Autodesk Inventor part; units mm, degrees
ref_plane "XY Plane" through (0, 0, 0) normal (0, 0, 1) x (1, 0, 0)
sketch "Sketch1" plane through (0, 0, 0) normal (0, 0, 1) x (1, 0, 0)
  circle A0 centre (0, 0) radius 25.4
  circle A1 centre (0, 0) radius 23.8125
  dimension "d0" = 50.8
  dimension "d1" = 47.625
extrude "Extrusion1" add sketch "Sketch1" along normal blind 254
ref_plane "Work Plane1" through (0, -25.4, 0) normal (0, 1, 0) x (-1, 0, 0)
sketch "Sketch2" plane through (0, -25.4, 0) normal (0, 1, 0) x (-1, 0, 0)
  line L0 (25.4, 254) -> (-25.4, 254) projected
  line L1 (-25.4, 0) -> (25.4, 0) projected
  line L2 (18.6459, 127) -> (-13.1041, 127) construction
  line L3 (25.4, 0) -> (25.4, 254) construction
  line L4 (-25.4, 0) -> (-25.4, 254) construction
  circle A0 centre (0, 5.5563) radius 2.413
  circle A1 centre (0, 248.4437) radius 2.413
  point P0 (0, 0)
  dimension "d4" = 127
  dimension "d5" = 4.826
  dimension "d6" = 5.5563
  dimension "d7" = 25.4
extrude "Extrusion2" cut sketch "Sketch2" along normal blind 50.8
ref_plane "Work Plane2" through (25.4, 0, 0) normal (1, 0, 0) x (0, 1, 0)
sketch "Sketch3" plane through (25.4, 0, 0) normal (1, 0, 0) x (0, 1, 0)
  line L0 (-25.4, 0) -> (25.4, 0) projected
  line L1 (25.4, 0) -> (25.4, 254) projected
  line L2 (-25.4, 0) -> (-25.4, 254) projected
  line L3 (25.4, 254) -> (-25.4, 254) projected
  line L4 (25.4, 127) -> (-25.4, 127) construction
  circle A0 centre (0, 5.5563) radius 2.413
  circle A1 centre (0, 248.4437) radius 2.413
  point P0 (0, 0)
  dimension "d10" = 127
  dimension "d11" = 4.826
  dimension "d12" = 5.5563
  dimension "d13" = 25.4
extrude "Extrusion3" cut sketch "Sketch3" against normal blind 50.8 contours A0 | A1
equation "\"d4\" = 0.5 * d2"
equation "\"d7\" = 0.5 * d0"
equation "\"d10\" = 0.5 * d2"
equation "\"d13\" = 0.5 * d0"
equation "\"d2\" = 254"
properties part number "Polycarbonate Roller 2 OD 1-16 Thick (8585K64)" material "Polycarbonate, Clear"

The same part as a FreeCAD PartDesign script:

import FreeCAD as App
import Part
import Sketcher

V = App.Vector
Q = App.Units.Quantity

doc = App.newDocument("Part")
body = doc.addObject("PartDesign::Body", "Body")

# Sketch on XY plane
sketch1 = body.newObject("Sketcher::SketchObject", "Sketch")
sketch1.AttachmentSupport = (doc.getObject("XY_Plane"), [""])
sketch1.MapMode = "FlatFace"
sketch1.addGeometry([
    Part.Circle(V(0, 0, 0), V(0, 0, 1), 25),
    Part.Circle(V(0, 0, 0), V(0, 0, 1), 24),
], False)
sketch1.addConstraint([
    Sketcher.Constraint("Coincident", 0, 3, -1, 1),
    Sketcher.Constraint("Coincident", 1, 3, -1, 1),
    Sketcher.Constraint("Diameter", 0, Q("2 in")),
    Sketcher.Constraint("Diameter", 1, Q("1.875 in")),
])
pad1 = body.newObject("PartDesign::Pad", "Pad")
pad1.Profile = sketch1
pad1.Length = Q("10 in")

# Sketch on XZ plane
sketch2 = body.newObject("Sketcher::SketchObject", "Sketch001")
sketch2.AttachmentSupport = (doc.getObject("XZ_Plane"), [""])
sketch2.MapMode = "FlatFace"
sketch2.AttachmentOffset = App.Placement(V(0, 0, 1 * 25.4), App.Rotation())
sketch2.addGeometry([
    Part.Circle(V(0, 5.6, 0), V(0, 0, 1), 2.4),
    Part.Circle(V(0, 248.4, 0), V(0, 0, 1), 2.4),
], False)
sketch2.addConstraint([
    Sketcher.Constraint("Equal", 0, 1),
    Sketcher.Constraint("PointOnObject", 0, 3, -2),
    Sketcher.Constraint("PointOnObject", 1, 3, -2),
    Sketcher.Constraint("Diameter", 0, Q("0.19 in")),
    Sketcher.Constraint("DistanceY", -1, 1, 0, 3, Q("0.218752 in")),
    Sketcher.Constraint("DistanceY", -1, 1, 1, 3, Q("9.781248 in")),
])
pocket1 = body.newObject("PartDesign::Pocket", "Pocket")
pocket1.Profile = sketch2
pocket1.Length = Q("2 in")

# Sketch on YZ plane
sketch3 = body.newObject("Sketcher::SketchObject", "Sketch002")
sketch3.AttachmentSupport = (doc.getObject("YZ_Plane"), [""])
sketch3.MapMode = "FlatFace"
sketch3.AttachmentOffset = App.Placement(V(0, 0, 1 * 25.4), App.Rotation())
sketch3.addGeometry([
    Part.Circle(V(0, 5.6, 0), V(0, 0, 1), 2.4),
    Part.Circle(V(0, 248.4, 0), V(0, 0, 1), 2.4),
], False)
sketch3.addConstraint([
    Sketcher.Constraint("Equal", 0, 1),
    Sketcher.Constraint("PointOnObject", 0, 3, -2),
    Sketcher.Constraint("PointOnObject", 1, 3, -2),
    Sketcher.Constraint("Diameter", 0, Q("0.19 in")),
    Sketcher.Constraint("DistanceY", -1, 1, 0, 3, Q("0.218752 in")),
    Sketcher.Constraint("DistanceY", -1, 1, 1, 3, Q("9.781248 in")),
])
pocket2 = body.newObject("PartDesign::Pocket", "Pocket001")
pocket2.Profile = sketch3
pocket2.Length = Q("2 in")

doc.recompute()
